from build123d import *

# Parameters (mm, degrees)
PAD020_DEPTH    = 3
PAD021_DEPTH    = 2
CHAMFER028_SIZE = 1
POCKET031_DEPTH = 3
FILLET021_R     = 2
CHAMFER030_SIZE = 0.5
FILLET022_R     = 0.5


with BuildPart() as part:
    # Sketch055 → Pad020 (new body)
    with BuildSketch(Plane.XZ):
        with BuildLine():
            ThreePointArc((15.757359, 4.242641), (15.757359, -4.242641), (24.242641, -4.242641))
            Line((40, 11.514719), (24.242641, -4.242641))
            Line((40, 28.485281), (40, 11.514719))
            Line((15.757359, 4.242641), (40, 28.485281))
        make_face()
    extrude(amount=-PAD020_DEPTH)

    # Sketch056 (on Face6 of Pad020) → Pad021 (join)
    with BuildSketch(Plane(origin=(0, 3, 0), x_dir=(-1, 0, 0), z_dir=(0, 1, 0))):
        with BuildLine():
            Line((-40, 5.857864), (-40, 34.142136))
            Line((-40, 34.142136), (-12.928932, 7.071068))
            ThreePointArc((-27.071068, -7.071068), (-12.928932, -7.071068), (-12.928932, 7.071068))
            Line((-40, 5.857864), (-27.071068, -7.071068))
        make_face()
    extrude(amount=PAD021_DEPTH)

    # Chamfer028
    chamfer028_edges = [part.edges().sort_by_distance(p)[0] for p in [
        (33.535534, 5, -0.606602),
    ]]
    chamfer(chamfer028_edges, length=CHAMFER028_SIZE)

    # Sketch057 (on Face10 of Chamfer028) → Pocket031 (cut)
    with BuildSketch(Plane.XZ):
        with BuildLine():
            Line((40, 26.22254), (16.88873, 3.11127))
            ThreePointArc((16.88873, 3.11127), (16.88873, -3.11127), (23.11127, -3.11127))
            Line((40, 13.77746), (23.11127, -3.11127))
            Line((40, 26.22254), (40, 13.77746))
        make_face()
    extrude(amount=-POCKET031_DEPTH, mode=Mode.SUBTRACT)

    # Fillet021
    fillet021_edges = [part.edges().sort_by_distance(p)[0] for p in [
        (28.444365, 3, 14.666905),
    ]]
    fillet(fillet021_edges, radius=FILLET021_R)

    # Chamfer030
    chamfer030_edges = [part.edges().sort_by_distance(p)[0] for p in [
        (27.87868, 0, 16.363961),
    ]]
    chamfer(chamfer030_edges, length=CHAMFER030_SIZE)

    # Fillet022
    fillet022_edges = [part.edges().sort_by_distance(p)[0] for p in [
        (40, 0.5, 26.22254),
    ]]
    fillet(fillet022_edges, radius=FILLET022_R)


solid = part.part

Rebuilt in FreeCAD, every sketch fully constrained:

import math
import FreeCAD as App
import Part
import Sketcher
from FreeCAD import Vector
Q = App.Units.Quantity


def edges_at(feature, points):
    """Names of the edges that pass closest to the given points."""
    edges = feature.Shape.Edges
    near = lambda p: min(range(len(edges)), key=lambda i: edges[i].distToShape(Part.Vertex(*p))[0])
    return sorted({f"Edge{near(p) + 1}" for p in points})

doc = App.newDocument("Part")
body = doc.addObject("PartDesign::Body", "Body")

# Sketch on XZ plane
sketch1 = body.newObject("Sketcher::SketchObject", "Sketch")
sketch1.AttachmentSupport = (doc.getObject("XZ_Plane"), [""])
sketch1.MapMode = "FlatFace"
sketch1.addGeometry([
    Part.ArcOfCircle(Part.Circle(Vector(20, 0, 0), Vector(0, 0, 1), 6), math.radians(135), math.radians(315)),
    Part.LineSegment(Vector(24, -4, 0), Vector(40, 12, 0)),
    Part.LineSegment(Vector(40, 12, 0), Vector(40, 28, 0)),
    Part.LineSegment(Vector(40, 28, 0), Vector(16, 4, 0)),
], False)
sketch1.addConstraint([
    Sketcher.Constraint("Tangent", 0, 2, 1, 1),
    Sketcher.Constraint("Coincident", 1, 2, 2, 1),
    Sketcher.Constraint("Coincident", 2, 2, 3, 1),
    Sketcher.Constraint("Tangent", 3, 2, 0, 1),
    Sketcher.Constraint("Vertical", 2),
    Sketcher.Constraint("PointOnObject", 0, 3, -1),
    Sketcher.Constraint("Parallel", 1, 3),
    Sketcher.Constraint("Radius", 0, 6.0),
    Sketcher.Constraint("Angle", 1, Q("45.000002 deg")),
    Sketcher.Constraint("DistanceX", -1, 1, 0, 3, 20.0),
    Sketcher.Constraint("DistanceX", -1, 1, 1, 2, 40.0),
])
pad1 = body.newObject("PartDesign::Pad", "Pad")
pad1.Profile = sketch1
pad1.Length = 3
pad1.Reversed = True

# Sketch on XZ plane
sketch2 = body.newObject("Sketcher::SketchObject", "Sketch001")
sketch2.AttachmentSupport = (doc.getObject("XZ_Plane"), [""])
sketch2.MapMode = "FlatFace"
sketch2.AttachmentOffset = App.Placement(Vector(0, 0, -3), App.Rotation())
sketch2.addGeometry([
    Part.LineSegment(Vector(40, 34, 0), Vector(40, 6, 0)),
    Part.LineSegment(Vector(40, 6, 0), Vector(27, -7, 0)),
    Part.ArcOfCircle(Part.Circle(Vector(20, 0, 0), Vector(0, 0, 1), 10), math.radians(135), math.radians(315)),
    Part.LineSegment(Vector(13, 7, 0), Vector(40, 34, 0)),
], False)
sketch2.addConstraint([
    Sketcher.Constraint("Coincident", 0, 2, 1, 1),
    Sketcher.Constraint("Tangent", 1, 2, 2, 2),
    Sketcher.Constraint("Tangent", 2, 1, 3, 1),
    Sketcher.Constraint("Coincident", 3, 2, 0, 1),
    Sketcher.Constraint("Vertical", 0),
    Sketcher.Constraint("PointOnObject", 2, 3, -1),
    Sketcher.Constraint("Parallel", 1, 3),
    Sketcher.Constraint("Radius", 2, 10.0),
    Sketcher.Constraint("Angle", 1, Q("-135 deg")),
    Sketcher.Constraint("DistanceX", -1, 1, 2, 3, 20.0),
    Sketcher.Constraint("DistanceX", -1, 1, 0, 2, 40.0),
])
pad2 = body.newObject("PartDesign::Pad", "Pad001")
pad2.Profile = sketch2
pad2.Length = 2
pad2.Reversed = True
doc.recompute()

chamfer = body.newObject("PartDesign::Chamfer", "Chamfer")
chamfer.Base = (pad2, edges_at(pad2, [(33.536, 5, -0.607)]))
chamfer.Size = 1

# Sketch on XZ plane
sketch3 = body.newObject("Sketcher::SketchObject", "Sketch002")
sketch3.AttachmentSupport = (doc.getObject("XZ_Plane"), [""])
sketch3.MapMode = "FlatFace"
sketch3.addGeometry([
    Part.LineSegment(Vector(40, 26.2, 0), Vector(16.9, 3.1, 0)),
    Part.ArcOfCircle(Part.Circle(Vector(20, 0, 0), Vector(0, 0, 1), 4.4), math.radians(135), math.radians(315)),
    Part.LineSegment(Vector(23.1, -3.1, 0), Vector(40, 13.8, 0)),
    Part.LineSegment(Vector(40, 13.8, 0), Vector(40, 26.2, 0)),
], False)
sketch3.addConstraint([
    Sketcher.Constraint("Tangent", 0, 2, 1, 1),
    Sketcher.Constraint("Tangent", 1, 2, 2, 1),
    Sketcher.Constraint("Coincident", 2, 2, 3, 1),
    Sketcher.Constraint("Coincident", 3, 2, 0, 1),
    Sketcher.Constraint("Vertical", 3),
    Sketcher.Constraint("PointOnObject", 1, 3, -1),
    Sketcher.Constraint("Parallel", 0, 2),
    Sketcher.Constraint("Radius", 1, 4.4),
    Sketcher.Constraint("Angle", 0, Q("-135 deg")),
    Sketcher.Constraint("DistanceX", -1, 1, 1, 3, 20.0),
    Sketcher.Constraint("DistanceX", -1, 1, 2, 2, 40.0),
])
pocket1 = body.newObject("PartDesign::Pocket", "Pocket")
pocket1.Profile = sketch3
pocket1.Length = 3
doc.recompute()

fillet = body.newObject("PartDesign::Fillet", "Fillet")
fillet.Base = (pocket1, edges_at(pocket1, [(28.444, 3, 14.667)]))
fillet.Radius = 2
doc.recompute()

chamfer2 = body.newObject("PartDesign::Chamfer", "Chamfer001")
chamfer2.Base = (fillet, edges_at(fillet, [(27.879, 0, 16.364)]))
chamfer2.Size = 0.5
doc.recompute()

fillet2 = body.newObject("PartDesign::Fillet", "Fillet001")
fillet2.Base = (chamfer2, edges_at(chamfer2, [(40, 0.5, 26.223)]))
fillet2.Radius = 0.5

doc.recompute()
